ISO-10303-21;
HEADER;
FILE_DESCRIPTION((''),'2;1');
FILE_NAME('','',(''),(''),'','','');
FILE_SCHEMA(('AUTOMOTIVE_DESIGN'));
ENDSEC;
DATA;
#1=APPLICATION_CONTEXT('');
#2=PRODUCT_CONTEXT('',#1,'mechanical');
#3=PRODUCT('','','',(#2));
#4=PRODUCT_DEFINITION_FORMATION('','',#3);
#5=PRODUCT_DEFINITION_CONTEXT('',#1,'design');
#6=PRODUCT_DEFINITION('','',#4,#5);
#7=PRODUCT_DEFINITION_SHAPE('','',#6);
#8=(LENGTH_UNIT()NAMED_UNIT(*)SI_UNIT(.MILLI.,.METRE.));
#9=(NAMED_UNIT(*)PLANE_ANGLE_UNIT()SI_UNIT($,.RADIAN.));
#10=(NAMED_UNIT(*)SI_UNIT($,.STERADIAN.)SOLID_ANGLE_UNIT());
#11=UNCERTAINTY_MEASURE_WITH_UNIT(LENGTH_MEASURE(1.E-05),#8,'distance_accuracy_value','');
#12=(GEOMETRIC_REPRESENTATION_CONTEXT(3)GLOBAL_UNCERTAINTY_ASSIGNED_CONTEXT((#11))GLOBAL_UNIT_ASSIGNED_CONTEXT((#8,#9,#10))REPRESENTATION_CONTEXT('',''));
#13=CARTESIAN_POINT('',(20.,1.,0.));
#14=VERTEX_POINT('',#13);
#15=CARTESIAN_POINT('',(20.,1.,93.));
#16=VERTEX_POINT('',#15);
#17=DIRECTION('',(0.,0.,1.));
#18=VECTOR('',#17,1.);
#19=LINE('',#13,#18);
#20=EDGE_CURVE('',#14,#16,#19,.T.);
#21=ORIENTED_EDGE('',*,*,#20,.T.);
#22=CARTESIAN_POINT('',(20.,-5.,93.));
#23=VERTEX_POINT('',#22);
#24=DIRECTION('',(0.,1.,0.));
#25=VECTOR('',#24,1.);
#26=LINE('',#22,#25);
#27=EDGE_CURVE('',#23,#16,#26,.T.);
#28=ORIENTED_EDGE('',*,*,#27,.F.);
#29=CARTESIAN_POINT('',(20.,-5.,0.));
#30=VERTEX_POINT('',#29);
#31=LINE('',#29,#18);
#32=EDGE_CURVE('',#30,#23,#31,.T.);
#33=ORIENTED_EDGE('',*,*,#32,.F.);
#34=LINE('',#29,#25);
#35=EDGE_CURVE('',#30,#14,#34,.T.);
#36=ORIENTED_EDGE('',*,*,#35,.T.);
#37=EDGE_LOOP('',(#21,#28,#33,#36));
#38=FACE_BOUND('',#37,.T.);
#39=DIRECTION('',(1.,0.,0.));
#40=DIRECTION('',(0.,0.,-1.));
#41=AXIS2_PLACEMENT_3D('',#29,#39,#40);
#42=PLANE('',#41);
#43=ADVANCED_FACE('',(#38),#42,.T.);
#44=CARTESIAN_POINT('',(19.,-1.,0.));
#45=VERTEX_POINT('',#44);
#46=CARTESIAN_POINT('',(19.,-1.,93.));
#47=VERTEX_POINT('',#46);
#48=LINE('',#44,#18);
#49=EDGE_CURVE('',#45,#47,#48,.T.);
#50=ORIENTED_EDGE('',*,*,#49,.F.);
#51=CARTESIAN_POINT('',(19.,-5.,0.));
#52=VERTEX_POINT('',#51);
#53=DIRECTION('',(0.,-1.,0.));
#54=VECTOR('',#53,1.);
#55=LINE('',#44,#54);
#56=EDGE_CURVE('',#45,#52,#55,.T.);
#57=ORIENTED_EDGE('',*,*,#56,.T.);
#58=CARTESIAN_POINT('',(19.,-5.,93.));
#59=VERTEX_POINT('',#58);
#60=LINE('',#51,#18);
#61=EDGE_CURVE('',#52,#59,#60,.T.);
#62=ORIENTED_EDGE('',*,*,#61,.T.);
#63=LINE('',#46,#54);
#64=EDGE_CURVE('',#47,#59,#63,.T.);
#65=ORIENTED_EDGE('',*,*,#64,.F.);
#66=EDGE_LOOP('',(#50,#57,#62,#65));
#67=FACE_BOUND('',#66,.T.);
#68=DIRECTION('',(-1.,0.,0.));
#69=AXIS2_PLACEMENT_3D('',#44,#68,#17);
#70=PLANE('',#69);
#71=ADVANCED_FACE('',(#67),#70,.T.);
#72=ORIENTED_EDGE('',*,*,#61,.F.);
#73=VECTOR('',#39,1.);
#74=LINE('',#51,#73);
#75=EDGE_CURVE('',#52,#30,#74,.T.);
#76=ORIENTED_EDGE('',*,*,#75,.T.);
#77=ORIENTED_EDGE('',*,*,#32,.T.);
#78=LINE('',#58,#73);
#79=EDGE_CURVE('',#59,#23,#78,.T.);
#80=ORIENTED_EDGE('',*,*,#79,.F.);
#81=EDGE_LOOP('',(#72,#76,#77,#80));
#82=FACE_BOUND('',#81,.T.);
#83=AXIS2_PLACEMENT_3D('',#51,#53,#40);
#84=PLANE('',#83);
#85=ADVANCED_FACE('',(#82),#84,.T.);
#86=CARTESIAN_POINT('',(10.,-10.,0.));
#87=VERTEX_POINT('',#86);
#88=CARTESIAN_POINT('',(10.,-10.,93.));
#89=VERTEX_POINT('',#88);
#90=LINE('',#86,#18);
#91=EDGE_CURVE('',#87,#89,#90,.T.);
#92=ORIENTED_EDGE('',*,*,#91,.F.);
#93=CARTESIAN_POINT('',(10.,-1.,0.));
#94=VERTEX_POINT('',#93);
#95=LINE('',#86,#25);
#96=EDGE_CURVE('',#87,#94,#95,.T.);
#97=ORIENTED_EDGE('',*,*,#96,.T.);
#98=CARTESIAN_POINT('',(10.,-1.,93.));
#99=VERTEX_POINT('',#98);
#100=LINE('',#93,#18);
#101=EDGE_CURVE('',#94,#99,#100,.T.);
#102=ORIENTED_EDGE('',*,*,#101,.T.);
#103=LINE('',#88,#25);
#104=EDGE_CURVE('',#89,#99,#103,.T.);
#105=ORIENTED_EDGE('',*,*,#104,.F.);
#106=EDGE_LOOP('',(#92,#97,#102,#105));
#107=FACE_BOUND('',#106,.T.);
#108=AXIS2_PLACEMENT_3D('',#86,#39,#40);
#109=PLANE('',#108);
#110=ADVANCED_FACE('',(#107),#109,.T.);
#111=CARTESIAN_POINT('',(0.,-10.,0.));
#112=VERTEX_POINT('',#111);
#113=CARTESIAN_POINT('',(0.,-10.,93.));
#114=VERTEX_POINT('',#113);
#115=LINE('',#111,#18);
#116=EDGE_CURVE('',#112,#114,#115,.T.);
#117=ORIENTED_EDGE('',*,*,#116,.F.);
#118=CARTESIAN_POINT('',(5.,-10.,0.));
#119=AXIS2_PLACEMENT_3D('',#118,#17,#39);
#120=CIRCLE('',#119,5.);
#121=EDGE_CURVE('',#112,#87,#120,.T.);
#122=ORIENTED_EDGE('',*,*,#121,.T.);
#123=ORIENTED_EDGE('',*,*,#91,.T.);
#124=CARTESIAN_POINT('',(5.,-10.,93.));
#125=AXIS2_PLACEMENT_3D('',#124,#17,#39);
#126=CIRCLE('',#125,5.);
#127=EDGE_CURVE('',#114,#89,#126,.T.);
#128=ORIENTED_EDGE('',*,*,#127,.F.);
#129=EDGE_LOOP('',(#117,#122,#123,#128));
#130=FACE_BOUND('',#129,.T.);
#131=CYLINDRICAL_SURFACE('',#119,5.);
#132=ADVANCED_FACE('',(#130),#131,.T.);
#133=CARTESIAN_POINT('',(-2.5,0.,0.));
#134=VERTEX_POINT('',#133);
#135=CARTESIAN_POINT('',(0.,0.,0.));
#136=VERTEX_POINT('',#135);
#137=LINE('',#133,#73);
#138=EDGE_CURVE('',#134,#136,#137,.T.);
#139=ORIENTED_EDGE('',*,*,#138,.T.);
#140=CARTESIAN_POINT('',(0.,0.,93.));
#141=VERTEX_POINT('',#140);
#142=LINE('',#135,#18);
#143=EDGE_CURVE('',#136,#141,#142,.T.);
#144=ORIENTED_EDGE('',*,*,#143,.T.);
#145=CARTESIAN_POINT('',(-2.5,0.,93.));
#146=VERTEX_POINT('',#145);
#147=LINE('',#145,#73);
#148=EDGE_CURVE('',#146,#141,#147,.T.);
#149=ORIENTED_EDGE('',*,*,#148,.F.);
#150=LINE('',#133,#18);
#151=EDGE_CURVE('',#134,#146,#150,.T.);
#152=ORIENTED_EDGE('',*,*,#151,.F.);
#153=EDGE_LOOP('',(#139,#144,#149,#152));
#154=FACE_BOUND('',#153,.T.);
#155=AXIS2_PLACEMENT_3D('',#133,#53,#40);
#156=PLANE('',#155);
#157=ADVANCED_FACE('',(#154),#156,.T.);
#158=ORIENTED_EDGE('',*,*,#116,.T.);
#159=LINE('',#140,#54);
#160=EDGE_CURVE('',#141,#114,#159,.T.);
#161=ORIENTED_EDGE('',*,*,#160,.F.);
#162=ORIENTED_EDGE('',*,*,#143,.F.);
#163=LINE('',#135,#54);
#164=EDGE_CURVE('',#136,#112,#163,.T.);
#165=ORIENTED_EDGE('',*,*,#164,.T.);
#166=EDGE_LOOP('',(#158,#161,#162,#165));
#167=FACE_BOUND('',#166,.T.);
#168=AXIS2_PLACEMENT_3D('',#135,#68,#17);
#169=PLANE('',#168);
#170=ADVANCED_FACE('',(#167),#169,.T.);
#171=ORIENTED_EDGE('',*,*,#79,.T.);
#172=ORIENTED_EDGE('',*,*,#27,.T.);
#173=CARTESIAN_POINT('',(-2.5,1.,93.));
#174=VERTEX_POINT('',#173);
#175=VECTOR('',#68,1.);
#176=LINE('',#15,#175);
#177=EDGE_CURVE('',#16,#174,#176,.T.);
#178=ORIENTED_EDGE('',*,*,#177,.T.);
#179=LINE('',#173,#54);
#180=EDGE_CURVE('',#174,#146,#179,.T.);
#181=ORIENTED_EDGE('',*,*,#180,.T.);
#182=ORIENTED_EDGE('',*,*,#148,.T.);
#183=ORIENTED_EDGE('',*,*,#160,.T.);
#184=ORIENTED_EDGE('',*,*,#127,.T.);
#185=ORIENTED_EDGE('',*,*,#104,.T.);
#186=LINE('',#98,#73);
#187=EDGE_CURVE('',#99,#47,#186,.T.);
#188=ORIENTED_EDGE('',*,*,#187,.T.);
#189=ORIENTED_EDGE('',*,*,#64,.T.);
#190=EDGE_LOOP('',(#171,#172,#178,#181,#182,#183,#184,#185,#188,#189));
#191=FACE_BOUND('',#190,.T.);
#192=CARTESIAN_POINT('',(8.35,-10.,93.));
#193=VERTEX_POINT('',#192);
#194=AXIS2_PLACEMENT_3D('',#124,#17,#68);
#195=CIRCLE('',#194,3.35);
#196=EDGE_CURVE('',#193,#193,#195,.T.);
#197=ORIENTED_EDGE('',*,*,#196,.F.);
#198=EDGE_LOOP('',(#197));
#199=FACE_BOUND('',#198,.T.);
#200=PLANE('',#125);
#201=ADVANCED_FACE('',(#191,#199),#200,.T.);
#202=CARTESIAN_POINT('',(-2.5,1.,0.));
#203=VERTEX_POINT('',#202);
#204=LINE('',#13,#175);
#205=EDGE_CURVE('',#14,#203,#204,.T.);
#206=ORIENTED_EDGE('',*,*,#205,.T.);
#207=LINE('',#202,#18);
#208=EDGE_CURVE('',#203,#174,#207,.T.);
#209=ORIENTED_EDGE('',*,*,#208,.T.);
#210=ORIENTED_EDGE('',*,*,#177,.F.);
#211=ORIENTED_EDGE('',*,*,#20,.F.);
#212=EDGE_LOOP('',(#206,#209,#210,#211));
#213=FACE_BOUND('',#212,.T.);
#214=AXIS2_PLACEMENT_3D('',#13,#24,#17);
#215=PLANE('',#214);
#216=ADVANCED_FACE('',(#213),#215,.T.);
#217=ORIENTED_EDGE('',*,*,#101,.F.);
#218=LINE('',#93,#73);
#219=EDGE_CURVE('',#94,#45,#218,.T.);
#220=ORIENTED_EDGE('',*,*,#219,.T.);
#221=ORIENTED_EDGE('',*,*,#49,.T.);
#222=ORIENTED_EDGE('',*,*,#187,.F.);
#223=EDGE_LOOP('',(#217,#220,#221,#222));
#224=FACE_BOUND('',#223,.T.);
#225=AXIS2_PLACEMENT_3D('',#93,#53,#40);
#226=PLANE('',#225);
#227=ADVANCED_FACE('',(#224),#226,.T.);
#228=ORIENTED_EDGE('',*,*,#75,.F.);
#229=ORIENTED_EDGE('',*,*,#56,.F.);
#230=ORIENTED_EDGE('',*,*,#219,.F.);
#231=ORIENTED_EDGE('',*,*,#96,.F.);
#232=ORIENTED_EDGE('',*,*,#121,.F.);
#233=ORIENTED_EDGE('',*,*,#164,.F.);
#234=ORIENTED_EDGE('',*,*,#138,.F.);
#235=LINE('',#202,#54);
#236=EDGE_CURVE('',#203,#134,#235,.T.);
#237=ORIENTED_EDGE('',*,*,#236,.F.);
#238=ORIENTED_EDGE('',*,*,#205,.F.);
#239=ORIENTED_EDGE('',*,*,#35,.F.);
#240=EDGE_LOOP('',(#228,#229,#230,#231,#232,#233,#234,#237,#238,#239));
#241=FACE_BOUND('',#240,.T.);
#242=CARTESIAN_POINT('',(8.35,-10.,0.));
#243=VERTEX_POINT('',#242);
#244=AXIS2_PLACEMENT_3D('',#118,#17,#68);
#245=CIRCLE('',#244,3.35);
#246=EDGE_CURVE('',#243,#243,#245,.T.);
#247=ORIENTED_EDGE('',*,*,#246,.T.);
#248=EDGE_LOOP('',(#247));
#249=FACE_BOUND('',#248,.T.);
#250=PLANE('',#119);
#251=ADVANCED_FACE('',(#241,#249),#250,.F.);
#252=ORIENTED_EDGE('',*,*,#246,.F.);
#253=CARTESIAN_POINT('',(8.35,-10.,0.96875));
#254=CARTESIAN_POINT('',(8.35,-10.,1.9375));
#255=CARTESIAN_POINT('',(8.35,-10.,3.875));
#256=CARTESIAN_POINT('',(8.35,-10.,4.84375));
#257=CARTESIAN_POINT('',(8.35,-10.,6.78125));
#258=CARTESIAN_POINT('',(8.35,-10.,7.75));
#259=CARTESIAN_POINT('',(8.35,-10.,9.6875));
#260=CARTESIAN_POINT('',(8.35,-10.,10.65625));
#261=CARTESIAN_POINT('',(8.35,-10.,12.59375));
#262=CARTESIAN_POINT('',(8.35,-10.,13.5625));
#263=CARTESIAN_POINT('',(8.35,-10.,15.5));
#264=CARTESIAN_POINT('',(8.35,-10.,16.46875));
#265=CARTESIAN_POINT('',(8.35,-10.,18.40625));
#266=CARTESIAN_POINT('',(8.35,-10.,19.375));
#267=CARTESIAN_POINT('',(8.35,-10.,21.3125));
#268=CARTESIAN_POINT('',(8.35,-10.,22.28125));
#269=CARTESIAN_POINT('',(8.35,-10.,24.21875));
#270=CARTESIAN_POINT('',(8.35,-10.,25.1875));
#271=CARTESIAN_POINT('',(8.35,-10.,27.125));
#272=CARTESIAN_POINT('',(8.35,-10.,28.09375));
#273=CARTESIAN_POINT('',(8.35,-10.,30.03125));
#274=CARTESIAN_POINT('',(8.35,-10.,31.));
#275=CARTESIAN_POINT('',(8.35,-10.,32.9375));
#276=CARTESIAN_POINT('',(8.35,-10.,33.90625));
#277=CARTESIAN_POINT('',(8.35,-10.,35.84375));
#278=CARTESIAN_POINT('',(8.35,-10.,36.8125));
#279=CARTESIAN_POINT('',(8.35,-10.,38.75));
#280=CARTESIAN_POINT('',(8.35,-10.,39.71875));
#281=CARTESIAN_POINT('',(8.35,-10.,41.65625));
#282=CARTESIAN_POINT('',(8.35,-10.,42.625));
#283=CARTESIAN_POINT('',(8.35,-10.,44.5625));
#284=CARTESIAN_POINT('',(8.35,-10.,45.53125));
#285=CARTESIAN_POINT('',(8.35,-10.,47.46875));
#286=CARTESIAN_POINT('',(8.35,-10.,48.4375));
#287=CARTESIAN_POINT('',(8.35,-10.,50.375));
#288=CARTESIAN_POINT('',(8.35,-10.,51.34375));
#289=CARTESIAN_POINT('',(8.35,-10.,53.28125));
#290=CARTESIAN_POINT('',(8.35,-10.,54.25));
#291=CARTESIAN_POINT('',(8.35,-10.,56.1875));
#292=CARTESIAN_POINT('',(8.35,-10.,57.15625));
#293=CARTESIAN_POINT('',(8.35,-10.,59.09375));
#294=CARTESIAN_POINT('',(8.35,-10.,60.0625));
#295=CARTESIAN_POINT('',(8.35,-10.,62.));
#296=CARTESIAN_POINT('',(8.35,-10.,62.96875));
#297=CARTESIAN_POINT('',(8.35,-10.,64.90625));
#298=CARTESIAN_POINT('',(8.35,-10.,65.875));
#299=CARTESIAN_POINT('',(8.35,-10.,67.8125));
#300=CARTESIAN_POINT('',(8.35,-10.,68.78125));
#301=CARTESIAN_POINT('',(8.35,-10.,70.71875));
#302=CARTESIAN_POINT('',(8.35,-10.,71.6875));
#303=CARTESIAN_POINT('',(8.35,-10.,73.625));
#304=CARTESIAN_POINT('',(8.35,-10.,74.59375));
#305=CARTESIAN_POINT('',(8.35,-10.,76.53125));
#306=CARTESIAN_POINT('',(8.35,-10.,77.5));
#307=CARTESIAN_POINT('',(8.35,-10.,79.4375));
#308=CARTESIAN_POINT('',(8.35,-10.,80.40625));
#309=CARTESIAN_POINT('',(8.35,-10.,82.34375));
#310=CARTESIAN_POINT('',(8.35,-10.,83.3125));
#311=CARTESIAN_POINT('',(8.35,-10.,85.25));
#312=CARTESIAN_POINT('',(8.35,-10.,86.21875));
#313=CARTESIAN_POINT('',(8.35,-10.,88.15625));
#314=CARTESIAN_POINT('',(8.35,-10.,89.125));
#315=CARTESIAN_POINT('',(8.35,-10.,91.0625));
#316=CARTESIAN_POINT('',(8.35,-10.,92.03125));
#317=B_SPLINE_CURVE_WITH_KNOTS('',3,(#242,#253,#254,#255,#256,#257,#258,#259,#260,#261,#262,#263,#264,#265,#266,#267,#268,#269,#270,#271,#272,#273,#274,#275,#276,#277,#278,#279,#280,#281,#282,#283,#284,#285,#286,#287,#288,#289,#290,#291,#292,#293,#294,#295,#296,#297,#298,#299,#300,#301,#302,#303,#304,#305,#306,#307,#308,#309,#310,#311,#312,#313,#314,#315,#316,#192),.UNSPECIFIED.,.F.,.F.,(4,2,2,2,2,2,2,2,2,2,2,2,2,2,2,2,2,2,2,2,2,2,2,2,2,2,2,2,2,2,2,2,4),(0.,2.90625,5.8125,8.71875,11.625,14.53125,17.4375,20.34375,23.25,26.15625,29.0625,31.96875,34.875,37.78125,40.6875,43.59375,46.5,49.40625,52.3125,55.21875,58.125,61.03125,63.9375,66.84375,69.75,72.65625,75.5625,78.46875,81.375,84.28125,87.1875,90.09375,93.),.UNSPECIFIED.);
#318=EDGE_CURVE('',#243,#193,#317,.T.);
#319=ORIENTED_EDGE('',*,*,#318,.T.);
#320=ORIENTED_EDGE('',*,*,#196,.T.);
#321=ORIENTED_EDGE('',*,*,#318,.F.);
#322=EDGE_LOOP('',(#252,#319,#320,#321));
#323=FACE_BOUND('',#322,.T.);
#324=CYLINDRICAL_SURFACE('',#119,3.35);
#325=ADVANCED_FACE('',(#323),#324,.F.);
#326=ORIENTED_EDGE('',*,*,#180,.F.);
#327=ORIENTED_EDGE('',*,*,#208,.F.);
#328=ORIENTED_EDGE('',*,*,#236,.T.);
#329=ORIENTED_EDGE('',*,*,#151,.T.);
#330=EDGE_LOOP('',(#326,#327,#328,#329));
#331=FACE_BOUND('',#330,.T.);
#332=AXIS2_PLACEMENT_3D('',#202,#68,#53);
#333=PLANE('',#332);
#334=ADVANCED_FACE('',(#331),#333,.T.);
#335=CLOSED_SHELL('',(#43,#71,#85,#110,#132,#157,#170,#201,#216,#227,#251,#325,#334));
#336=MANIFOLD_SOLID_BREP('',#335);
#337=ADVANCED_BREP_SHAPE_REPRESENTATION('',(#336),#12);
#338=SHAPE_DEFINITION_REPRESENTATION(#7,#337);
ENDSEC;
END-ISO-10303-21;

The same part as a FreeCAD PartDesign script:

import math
import FreeCAD as App
import Part
import Sketcher
from FreeCAD import Vector

doc = App.newDocument("Part")
params = doc.addObject("Spreadsheet::Sheet", "Params")
for row, (alias, value) in enumerate([
    ("sketch1_radius", "5 mm"),
    ("sketch1_diameter", "6.7 mm"),
    ("sketch1_width", "9 mm"),
    ("sketch1_width2", "1 mm"),
    ("sketch1_height", "10 mm"),
    ("pad1_length", "93 mm"),
], start=1):
    params.set(f"A{row}", alias)
    params.set(f"B{row}", "=" + value)
    params.setAlias(f"B{row}", alias)

body = doc.addObject("PartDesign::Body", "Body")

# Sketch on XY plane
sketch1 = body.newObject("Sketcher::SketchObject", "Sketch")
sketch1.AttachmentSupport = (doc.getObject("XY_Plane"), [""])
sketch1.MapMode = "FlatFace"
sketch1.AttachmentOffset = App.Placement(Vector(0, 0, 93), App.Rotation())
sketch1.addGeometry([
    Part.LineSegment(Vector(-2.5, 0, 0), Vector(0, 0, 0)),  # 0
    Part.LineSegment(Vector(0, 0, 0), Vector(0, -10, 0)),  # 1
    Part.ArcOfCircle(Part.Circle(Vector(5, -10, 0), Vector(0, 0, 1), 5), math.radians(180), math.radians(360)),  # 2
    Part.LineSegment(Vector(10, -10, 0), Vector(10, -1, 0)),  # 3
    Part.LineSegment(Vector(10, -1, 0), Vector(19, -1, 0)),  # 4
    Part.LineSegment(Vector(19, -1, 0), Vector(19, -5, 0)),  # 5
    Part.LineSegment(Vector(19, -5, 0), Vector(20, -5, 0)),  # 6
    Part.LineSegment(Vector(20, -5, 0), Vector(20, 1, 0)),  # 7
    Part.LineSegment(Vector(20, 1, 0), Vector(-2.5, 1, 0)),  # 8
    Part.LineSegment(Vector(-2.5, 1, 0), Vector(-2.5, 0, 0)),  # 9
    Part.Circle(Vector(5, -10, 0), Vector(0, 0, 1), 3.4),  # 10
], False)
sketch1.addConstraint([
    Sketcher.Constraint("Coincident", 0, 2, 1, 1),
    Sketcher.Constraint("Tangent", 1, 2, 2, 1),
    Sketcher.Constraint("Tangent", 2, 2, 3, 1),
    Sketcher.Constraint("Coincident", 3, 2, 4, 1),
    Sketcher.Constraint("Coincident", 4, 2, 5, 1),
    Sketcher.Constraint("Coincident", 5, 2, 6, 1),
    Sketcher.Constraint("Coincident", 6, 2, 7, 1),
    Sketcher.Constraint("Coincident", 7, 2, 8, 1),
    Sketcher.Constraint("Coincident", 8, 2, 9, 1),
    Sketcher.Constraint("Coincident", 9, 2, 0, 1),
    Sketcher.Constraint("Horizontal", 0),
    Sketcher.Constraint("Vertical", 1),
    Sketcher.Constraint("Vertical", 3),
    Sketcher.Constraint("Horizontal", 4),
    Sketcher.Constraint("Vertical", 5),
    Sketcher.Constraint("Horizontal", 6),
    Sketcher.Constraint("Vertical", 7),
    Sketcher.Constraint("Horizontal", 8),
    Sketcher.Constraint("Vertical", 9),
    Sketcher.Constraint("Coincident", 0, 2, -1, 1),
    Sketcher.Constraint("Coincident", 10, 3, 2, 3),
    Sketcher.Constraint("Equal", 4, 3),
    Sketcher.Constraint("Equal", 6, 9),
    Sketcher.Constraint("Radius", 2, 5.0),
    Sketcher.Constraint("Diameter", 10, 6.7),
    Sketcher.Constraint("DistanceX", 4, 1, 4, 2, 9.0),
    Sketcher.Constraint("DistanceX", 6, 1, 6, 2, 1.0),
    Sketcher.Constraint("DistanceY", 1, 2, 1, 1, 10.0),
    Sketcher.Constraint("DistanceY", 5, 2, 5, 1, 4.0),
    Sketcher.Constraint("DistanceX", 0, 1, 0, 2, 2.5),
])
sketch1.setExpression("Constraints[23]", "Params.sketch1_radius")
sketch1.setExpression("Constraints[24]", "Params.sketch1_diameter")
sketch1.setExpression("Constraints[25]", "Params.sketch1_width")
sketch1.setExpression("Constraints[26]", "Params.sketch1_width2")
sketch1.setExpression("Constraints[27]", "Params.sketch1_height")
pad1 = body.newObject("PartDesign::Pad", "Pad")
pad1.Profile = sketch1
pad1.setExpression("Length", "Params.pad1_length")
pad1.Reversed = True

doc.recompute()
